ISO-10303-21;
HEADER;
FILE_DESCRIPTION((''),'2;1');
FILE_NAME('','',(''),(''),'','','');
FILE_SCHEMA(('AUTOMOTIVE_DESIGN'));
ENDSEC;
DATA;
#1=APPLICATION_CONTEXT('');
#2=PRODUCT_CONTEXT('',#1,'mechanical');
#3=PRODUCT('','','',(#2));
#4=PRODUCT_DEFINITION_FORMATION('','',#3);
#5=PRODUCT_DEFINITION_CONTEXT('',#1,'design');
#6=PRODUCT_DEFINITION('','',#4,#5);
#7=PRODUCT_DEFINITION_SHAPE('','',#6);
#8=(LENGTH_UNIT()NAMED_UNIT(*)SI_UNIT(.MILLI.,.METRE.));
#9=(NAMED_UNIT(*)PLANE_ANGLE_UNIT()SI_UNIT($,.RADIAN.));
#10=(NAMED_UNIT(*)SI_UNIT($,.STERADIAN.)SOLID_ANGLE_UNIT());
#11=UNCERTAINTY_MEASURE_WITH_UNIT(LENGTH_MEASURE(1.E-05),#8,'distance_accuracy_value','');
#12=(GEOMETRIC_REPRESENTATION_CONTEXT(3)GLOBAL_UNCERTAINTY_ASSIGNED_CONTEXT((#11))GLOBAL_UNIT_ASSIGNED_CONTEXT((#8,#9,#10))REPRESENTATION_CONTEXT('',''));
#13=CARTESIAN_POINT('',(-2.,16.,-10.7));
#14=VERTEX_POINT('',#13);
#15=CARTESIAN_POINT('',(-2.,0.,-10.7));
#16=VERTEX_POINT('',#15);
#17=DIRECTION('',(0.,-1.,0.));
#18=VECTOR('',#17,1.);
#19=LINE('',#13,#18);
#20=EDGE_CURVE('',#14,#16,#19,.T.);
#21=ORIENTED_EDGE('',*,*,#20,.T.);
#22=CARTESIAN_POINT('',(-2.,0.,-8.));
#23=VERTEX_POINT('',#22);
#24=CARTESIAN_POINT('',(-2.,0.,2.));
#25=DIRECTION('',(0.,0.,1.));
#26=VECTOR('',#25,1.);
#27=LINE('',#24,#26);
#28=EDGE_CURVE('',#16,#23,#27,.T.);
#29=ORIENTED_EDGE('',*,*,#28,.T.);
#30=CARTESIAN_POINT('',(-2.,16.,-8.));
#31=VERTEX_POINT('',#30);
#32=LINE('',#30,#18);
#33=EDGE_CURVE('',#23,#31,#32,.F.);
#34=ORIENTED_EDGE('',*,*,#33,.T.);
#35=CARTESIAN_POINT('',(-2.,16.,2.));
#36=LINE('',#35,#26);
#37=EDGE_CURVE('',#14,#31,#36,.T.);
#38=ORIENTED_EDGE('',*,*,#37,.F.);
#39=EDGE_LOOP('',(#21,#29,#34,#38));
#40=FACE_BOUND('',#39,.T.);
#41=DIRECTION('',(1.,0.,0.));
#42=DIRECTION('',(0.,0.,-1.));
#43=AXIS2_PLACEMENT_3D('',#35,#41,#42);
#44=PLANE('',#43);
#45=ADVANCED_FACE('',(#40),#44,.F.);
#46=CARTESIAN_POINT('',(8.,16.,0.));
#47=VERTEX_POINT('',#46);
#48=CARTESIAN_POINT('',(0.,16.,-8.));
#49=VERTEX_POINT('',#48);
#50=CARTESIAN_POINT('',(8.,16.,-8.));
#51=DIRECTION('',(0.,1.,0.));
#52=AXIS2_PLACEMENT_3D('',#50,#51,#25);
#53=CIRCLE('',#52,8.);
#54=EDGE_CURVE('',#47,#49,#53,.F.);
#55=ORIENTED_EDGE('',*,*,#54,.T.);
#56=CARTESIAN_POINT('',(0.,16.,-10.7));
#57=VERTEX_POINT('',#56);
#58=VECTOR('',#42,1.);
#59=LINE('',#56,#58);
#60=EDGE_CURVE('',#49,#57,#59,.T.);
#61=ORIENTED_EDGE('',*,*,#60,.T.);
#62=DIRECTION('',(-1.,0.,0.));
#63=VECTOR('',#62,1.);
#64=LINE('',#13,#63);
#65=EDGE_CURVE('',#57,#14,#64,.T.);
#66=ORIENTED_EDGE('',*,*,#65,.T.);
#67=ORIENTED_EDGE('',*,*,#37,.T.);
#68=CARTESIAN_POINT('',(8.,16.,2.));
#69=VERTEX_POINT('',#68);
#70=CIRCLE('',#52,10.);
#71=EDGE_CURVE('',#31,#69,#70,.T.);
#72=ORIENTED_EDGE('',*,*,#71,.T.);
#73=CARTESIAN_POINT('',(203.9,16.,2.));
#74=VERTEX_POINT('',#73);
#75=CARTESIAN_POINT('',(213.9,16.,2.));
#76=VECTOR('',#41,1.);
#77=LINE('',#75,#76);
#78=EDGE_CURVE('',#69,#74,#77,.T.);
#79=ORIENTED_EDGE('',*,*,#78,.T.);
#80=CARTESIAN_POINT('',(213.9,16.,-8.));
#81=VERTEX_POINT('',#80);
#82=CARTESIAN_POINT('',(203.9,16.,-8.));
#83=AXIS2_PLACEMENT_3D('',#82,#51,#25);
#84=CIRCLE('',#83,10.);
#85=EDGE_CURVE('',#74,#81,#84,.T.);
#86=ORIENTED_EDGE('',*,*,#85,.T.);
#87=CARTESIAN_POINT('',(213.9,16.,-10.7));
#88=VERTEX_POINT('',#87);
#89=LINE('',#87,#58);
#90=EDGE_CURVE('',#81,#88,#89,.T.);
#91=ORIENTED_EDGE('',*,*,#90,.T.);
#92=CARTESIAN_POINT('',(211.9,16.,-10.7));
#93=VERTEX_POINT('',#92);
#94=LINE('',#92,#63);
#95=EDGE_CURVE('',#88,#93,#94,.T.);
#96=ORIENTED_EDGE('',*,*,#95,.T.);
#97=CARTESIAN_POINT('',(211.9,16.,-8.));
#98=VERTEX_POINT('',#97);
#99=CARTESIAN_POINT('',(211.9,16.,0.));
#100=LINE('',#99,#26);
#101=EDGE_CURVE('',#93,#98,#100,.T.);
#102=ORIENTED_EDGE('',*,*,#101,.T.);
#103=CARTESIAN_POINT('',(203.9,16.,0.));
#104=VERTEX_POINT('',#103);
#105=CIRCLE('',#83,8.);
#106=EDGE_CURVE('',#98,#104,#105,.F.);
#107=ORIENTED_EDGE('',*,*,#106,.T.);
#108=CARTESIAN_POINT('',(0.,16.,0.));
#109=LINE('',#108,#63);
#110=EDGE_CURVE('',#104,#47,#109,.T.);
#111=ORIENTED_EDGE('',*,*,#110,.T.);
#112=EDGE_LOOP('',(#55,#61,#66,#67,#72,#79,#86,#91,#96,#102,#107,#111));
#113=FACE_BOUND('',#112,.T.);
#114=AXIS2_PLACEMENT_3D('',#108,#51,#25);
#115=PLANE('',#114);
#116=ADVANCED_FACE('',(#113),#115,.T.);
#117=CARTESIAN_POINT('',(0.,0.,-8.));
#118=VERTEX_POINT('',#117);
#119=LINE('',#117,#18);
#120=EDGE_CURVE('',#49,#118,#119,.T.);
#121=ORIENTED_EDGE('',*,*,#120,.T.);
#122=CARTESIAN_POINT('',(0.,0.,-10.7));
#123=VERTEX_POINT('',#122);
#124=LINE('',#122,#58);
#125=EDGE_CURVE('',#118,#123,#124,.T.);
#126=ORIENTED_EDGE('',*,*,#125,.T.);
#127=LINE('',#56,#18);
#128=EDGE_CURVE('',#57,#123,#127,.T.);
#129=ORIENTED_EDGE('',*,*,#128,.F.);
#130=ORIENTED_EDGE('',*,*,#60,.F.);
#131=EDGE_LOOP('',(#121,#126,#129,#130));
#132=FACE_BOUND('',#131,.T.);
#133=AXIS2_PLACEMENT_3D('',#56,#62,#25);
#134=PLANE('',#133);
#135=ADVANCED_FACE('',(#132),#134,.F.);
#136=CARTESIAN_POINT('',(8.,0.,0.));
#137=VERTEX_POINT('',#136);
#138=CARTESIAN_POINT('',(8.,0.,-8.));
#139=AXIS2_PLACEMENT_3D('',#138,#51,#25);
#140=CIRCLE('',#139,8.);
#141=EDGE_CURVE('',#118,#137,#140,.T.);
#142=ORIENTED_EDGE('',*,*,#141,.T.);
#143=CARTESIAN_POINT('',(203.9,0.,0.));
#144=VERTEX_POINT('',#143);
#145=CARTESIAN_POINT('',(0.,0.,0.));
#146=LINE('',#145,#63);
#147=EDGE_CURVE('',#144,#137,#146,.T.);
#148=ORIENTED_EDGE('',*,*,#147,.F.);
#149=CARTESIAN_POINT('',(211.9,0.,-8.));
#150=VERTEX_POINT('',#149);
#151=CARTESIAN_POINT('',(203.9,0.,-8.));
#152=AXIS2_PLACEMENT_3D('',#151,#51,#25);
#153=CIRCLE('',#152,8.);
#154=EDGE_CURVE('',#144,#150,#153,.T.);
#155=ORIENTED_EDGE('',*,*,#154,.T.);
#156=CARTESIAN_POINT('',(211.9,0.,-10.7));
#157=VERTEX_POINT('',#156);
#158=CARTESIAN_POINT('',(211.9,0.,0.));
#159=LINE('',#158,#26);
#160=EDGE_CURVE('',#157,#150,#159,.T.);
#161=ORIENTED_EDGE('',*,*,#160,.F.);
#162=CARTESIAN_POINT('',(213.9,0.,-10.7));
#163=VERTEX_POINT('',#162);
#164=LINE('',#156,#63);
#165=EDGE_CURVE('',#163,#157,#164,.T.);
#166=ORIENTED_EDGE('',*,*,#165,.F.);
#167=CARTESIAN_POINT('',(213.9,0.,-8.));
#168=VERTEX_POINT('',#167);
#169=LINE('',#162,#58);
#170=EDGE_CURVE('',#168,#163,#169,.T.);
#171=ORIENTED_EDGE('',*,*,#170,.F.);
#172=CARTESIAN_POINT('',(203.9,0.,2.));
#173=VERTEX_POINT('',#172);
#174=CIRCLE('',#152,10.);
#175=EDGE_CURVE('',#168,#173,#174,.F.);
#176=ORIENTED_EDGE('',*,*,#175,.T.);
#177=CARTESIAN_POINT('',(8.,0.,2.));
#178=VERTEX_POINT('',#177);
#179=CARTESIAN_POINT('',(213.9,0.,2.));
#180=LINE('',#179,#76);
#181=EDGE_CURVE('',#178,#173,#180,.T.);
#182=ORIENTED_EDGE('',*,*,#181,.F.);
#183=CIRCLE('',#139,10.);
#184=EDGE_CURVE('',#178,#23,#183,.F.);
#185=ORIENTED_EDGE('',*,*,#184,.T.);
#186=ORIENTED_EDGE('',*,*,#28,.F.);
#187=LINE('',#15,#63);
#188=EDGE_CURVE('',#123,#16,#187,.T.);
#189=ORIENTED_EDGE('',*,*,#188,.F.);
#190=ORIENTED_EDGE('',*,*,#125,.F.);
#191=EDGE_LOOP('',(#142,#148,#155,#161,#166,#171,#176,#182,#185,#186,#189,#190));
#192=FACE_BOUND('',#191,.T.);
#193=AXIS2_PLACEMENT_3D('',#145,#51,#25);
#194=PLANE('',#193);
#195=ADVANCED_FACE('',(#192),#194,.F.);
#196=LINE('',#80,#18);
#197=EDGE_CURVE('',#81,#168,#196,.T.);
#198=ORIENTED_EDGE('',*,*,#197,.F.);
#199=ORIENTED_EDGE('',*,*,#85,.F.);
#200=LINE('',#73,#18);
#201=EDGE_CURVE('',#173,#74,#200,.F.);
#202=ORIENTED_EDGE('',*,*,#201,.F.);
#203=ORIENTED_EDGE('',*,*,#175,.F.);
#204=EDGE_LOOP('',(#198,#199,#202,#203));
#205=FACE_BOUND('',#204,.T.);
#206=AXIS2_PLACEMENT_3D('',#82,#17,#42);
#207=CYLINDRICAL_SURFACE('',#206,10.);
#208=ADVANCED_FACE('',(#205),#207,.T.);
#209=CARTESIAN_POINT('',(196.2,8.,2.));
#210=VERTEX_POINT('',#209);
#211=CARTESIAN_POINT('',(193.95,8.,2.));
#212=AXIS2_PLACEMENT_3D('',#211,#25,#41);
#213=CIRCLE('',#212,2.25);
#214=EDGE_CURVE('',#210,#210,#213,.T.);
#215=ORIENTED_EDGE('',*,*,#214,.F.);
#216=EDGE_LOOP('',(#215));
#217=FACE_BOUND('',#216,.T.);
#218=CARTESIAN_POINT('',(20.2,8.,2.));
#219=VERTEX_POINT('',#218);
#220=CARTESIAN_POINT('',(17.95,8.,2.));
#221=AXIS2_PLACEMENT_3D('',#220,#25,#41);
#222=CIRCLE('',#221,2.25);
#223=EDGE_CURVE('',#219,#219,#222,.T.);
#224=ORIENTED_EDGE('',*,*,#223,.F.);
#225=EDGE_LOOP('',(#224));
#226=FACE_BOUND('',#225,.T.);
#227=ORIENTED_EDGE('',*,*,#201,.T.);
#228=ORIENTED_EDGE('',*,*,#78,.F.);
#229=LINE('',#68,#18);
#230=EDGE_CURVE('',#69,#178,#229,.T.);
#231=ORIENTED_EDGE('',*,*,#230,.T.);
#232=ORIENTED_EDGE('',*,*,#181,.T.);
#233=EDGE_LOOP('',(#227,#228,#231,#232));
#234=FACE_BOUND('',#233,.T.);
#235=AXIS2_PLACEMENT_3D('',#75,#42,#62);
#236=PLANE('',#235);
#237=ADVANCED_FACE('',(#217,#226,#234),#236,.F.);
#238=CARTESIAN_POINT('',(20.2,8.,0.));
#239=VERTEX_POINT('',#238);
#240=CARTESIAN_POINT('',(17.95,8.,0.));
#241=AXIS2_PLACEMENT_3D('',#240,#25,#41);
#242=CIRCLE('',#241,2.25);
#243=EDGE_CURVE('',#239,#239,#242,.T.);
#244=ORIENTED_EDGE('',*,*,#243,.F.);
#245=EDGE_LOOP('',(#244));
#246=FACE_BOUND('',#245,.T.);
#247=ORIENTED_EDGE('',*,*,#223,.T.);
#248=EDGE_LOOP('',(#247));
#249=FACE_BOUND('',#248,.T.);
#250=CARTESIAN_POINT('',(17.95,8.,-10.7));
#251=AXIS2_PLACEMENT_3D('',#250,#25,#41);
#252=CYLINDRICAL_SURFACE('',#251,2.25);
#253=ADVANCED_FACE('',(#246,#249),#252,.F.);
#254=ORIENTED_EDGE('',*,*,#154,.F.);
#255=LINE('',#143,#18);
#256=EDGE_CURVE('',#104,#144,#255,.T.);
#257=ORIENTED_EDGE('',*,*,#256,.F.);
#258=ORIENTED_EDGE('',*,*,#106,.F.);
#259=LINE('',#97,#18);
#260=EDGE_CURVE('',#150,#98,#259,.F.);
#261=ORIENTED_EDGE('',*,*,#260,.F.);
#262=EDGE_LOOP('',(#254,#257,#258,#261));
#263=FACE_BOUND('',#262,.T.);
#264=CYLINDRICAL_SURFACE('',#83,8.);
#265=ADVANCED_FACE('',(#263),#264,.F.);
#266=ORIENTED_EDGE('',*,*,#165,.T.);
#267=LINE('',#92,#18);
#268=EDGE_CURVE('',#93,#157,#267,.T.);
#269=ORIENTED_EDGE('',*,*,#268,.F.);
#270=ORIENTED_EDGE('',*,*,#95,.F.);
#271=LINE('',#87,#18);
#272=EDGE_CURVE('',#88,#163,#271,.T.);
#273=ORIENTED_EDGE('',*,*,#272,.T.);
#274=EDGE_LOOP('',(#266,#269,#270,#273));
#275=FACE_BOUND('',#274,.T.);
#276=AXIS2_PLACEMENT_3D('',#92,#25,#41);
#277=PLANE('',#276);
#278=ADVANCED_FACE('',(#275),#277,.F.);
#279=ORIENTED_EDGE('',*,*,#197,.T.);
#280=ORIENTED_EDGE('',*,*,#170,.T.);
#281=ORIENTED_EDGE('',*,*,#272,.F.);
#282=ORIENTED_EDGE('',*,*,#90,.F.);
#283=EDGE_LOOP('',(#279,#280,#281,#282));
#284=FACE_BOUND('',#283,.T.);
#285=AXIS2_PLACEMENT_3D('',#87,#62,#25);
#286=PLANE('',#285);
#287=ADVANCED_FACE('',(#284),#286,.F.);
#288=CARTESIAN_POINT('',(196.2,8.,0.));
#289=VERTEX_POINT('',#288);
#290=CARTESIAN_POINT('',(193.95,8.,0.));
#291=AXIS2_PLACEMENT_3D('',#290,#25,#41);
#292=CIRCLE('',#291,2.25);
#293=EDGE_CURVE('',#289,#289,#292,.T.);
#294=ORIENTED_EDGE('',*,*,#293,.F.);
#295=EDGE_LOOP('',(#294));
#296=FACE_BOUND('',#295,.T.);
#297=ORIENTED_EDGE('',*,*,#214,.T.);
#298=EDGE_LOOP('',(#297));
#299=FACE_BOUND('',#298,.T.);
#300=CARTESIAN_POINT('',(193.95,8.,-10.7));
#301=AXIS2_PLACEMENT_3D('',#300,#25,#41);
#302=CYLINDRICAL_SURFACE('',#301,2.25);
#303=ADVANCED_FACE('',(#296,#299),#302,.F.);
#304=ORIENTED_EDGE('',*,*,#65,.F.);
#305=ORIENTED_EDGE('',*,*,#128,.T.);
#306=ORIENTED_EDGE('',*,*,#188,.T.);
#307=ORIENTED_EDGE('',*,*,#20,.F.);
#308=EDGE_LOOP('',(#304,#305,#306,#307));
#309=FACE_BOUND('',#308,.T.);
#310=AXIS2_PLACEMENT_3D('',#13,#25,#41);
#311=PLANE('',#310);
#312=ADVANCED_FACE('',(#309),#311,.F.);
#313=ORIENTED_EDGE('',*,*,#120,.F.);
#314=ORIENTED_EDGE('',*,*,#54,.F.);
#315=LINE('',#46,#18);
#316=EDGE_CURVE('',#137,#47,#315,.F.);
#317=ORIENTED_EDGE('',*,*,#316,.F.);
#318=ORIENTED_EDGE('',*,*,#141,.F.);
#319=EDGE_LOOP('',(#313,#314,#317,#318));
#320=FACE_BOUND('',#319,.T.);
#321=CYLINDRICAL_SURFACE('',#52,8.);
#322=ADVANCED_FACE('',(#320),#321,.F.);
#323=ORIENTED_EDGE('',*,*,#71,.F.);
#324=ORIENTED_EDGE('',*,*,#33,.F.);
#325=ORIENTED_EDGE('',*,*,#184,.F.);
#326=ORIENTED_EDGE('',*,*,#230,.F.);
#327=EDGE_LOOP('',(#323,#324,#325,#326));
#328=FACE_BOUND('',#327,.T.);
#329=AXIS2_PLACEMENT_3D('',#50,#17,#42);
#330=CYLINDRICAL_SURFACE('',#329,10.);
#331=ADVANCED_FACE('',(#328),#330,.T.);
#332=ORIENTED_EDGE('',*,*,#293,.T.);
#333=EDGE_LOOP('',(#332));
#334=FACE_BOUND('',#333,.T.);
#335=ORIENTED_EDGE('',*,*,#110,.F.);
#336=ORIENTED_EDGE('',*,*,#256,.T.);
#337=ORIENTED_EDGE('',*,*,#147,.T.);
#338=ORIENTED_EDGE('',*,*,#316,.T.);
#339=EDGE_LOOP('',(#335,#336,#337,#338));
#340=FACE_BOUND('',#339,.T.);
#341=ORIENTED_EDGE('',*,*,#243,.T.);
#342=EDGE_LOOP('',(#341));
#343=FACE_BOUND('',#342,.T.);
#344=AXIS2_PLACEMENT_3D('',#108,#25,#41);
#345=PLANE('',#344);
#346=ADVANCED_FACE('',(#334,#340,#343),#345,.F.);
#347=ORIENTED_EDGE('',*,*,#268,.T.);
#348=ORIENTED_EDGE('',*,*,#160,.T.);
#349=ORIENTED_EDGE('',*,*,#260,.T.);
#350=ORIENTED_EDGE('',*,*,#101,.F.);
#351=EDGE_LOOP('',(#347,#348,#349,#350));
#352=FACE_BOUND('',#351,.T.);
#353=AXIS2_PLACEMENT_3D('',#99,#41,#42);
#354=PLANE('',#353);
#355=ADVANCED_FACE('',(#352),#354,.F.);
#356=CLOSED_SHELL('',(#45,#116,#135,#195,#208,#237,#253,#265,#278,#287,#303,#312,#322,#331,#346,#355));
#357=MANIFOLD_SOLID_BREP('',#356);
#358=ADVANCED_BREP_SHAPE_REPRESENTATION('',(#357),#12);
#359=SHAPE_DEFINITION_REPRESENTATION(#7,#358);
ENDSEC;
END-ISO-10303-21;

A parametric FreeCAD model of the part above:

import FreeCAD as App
import Part
import Sketcher
from FreeCAD import Vector
Q = App.Units.Quantity


def edges_at(feature, points):
    """Names of the edges that pass closest to the given points."""
    edges = feature.Shape.Edges
    near = lambda p: min(range(len(edges)), key=lambda i: edges[i].distToShape(Part.Vertex(*p))[0])
    return sorted({f"Edge{near(p) + 1}" for p in points})


def add_polygon(sketch, points):
    """Adds a closed chain of lines whose ends are joined by coincident constraints."""
    first, n = sketch.GeometryCount, len(points)
    for a, b in zip(points, points[1:] + points[:1]):
        sketch.addGeometry(Part.LineSegment(App.Vector(*a, 0), App.Vector(*b, 0)), False)
    for i in range(n):
        sketch.addConstraint(Sketcher.Constraint("Coincident", first + i, 2, first + (i + 1) % n, 1))

doc = App.newDocument("Part")
body = doc.addObject("PartDesign::Body", "Body")

# Sketch on XZ plane
sketch1 = doc.addObject("Sketcher::SketchObject", "Sketch")
body.addObject(sketch1)
sketch1.AttachmentSupport = (doc.XZ_Plane, [""])
sketch1.MapMode = "FlatFace"
add_polygon(sketch1, [(211.9, 0), (0, 0), (0, -10.7), (-2, -10.7), (-2, 2), (213.9, 2), (213.9, -10.7), (211.9, -10.7)])  # lines 0-7
sketch1.addConstraint([
    Sketcher.Constraint("Horizontal", 0),
    Sketcher.Constraint("Vertical", 1),
    Sketcher.Constraint("Horizontal", 2),
    Sketcher.Constraint("Vertical", 3),
    Sketcher.Constraint("Horizontal", 4),
    Sketcher.Constraint("Vertical", 5),
    Sketcher.Constraint("Horizontal", 6),
    Sketcher.Constraint("Vertical", 7),
    Sketcher.Constraint("Coincident", 0, 2, -1, 1),
    Sketcher.Constraint("Horizontal", 2, 2, 5, 2),
    Sketcher.Constraint("Equal", 2, 6),
    Sketcher.Constraint("DistanceX", 2, 2, 2, 1, Q("2 mm")),
    Sketcher.Constraint("DistanceX", 0, 2, 0, 1, Q("211.9 mm")),
    Sketcher.Constraint("DistanceY", 1, 2, 1, 1, Q("10.7 mm")),
    Sketcher.Constraint("DistanceY", 3, 1, 3, 2, Q("12.7 mm")),
])
pad1 = doc.addObject("PartDesign::Pad", "Pad")
body.addObject(pad1)
pad1.Profile = sketch1
pad1.Length = 16
pad1.Reversed = True
doc.recompute()

fillet = doc.addObject("PartDesign::Fillet", "Fillet")
body.addObject(fillet)
fillet.Base = (pad1, edges_at(pad1, [(0, 8, 0), (211.9, 8, 0)]))
fillet.Radius = 8
doc.recompute()

fillet2 = doc.addObject("PartDesign::Fillet", "Fillet001")
body.addObject(fillet2)
fillet2.Base = (fillet, edges_at(fillet, [(213.9, 8, 2), (-2, 8, 2)]))
fillet2.Radius = 10

# Sketch on XY plane
sketch2 = doc.addObject("Sketcher::SketchObject", "Sketch001")
body.addObject(sketch2)
sketch2.AttachmentSupport = (doc.XY_Plane, [""])
sketch2.MapMode = "FlatFace"
sketch2.AttachmentOffset = App.Placement(Vector(0, 0, 2), App.Rotation())
sketch2.addGeometry([
    Part.Circle(Vector(17.9, 8, 0), Vector(0, 0, 1), 2.2),
    Part.Circle(Vector(193.9, 8, 0), Vector(0, 0, 1), 2.2),
], False)
sketch2.addConstraint([
    Sketcher.Constraint("Equal", 0, 1),
    Sketcher.Constraint("Horizontal", 0, 3, 1, 3),
    Sketcher.Constraint("Diameter", 0, Q("4.5 mm")),
    Sketcher.Constraint("DistanceY", -1, 1, 0, 3, Q("8 mm")),
    Sketcher.Constraint("DistanceX", 0, 3, 1, 3, Q("176 mm")),
    Sketcher.Constraint("DistanceX", -1, 1, 0, 3, Q("17.95 mm")),
])
pocket1 = doc.addObject("PartDesign::Pocket", "Pocket")
body.addObject(pocket1)
pocket1.Profile = sketch2
pocket1.Type = "ThroughAll"

doc.recompute()
